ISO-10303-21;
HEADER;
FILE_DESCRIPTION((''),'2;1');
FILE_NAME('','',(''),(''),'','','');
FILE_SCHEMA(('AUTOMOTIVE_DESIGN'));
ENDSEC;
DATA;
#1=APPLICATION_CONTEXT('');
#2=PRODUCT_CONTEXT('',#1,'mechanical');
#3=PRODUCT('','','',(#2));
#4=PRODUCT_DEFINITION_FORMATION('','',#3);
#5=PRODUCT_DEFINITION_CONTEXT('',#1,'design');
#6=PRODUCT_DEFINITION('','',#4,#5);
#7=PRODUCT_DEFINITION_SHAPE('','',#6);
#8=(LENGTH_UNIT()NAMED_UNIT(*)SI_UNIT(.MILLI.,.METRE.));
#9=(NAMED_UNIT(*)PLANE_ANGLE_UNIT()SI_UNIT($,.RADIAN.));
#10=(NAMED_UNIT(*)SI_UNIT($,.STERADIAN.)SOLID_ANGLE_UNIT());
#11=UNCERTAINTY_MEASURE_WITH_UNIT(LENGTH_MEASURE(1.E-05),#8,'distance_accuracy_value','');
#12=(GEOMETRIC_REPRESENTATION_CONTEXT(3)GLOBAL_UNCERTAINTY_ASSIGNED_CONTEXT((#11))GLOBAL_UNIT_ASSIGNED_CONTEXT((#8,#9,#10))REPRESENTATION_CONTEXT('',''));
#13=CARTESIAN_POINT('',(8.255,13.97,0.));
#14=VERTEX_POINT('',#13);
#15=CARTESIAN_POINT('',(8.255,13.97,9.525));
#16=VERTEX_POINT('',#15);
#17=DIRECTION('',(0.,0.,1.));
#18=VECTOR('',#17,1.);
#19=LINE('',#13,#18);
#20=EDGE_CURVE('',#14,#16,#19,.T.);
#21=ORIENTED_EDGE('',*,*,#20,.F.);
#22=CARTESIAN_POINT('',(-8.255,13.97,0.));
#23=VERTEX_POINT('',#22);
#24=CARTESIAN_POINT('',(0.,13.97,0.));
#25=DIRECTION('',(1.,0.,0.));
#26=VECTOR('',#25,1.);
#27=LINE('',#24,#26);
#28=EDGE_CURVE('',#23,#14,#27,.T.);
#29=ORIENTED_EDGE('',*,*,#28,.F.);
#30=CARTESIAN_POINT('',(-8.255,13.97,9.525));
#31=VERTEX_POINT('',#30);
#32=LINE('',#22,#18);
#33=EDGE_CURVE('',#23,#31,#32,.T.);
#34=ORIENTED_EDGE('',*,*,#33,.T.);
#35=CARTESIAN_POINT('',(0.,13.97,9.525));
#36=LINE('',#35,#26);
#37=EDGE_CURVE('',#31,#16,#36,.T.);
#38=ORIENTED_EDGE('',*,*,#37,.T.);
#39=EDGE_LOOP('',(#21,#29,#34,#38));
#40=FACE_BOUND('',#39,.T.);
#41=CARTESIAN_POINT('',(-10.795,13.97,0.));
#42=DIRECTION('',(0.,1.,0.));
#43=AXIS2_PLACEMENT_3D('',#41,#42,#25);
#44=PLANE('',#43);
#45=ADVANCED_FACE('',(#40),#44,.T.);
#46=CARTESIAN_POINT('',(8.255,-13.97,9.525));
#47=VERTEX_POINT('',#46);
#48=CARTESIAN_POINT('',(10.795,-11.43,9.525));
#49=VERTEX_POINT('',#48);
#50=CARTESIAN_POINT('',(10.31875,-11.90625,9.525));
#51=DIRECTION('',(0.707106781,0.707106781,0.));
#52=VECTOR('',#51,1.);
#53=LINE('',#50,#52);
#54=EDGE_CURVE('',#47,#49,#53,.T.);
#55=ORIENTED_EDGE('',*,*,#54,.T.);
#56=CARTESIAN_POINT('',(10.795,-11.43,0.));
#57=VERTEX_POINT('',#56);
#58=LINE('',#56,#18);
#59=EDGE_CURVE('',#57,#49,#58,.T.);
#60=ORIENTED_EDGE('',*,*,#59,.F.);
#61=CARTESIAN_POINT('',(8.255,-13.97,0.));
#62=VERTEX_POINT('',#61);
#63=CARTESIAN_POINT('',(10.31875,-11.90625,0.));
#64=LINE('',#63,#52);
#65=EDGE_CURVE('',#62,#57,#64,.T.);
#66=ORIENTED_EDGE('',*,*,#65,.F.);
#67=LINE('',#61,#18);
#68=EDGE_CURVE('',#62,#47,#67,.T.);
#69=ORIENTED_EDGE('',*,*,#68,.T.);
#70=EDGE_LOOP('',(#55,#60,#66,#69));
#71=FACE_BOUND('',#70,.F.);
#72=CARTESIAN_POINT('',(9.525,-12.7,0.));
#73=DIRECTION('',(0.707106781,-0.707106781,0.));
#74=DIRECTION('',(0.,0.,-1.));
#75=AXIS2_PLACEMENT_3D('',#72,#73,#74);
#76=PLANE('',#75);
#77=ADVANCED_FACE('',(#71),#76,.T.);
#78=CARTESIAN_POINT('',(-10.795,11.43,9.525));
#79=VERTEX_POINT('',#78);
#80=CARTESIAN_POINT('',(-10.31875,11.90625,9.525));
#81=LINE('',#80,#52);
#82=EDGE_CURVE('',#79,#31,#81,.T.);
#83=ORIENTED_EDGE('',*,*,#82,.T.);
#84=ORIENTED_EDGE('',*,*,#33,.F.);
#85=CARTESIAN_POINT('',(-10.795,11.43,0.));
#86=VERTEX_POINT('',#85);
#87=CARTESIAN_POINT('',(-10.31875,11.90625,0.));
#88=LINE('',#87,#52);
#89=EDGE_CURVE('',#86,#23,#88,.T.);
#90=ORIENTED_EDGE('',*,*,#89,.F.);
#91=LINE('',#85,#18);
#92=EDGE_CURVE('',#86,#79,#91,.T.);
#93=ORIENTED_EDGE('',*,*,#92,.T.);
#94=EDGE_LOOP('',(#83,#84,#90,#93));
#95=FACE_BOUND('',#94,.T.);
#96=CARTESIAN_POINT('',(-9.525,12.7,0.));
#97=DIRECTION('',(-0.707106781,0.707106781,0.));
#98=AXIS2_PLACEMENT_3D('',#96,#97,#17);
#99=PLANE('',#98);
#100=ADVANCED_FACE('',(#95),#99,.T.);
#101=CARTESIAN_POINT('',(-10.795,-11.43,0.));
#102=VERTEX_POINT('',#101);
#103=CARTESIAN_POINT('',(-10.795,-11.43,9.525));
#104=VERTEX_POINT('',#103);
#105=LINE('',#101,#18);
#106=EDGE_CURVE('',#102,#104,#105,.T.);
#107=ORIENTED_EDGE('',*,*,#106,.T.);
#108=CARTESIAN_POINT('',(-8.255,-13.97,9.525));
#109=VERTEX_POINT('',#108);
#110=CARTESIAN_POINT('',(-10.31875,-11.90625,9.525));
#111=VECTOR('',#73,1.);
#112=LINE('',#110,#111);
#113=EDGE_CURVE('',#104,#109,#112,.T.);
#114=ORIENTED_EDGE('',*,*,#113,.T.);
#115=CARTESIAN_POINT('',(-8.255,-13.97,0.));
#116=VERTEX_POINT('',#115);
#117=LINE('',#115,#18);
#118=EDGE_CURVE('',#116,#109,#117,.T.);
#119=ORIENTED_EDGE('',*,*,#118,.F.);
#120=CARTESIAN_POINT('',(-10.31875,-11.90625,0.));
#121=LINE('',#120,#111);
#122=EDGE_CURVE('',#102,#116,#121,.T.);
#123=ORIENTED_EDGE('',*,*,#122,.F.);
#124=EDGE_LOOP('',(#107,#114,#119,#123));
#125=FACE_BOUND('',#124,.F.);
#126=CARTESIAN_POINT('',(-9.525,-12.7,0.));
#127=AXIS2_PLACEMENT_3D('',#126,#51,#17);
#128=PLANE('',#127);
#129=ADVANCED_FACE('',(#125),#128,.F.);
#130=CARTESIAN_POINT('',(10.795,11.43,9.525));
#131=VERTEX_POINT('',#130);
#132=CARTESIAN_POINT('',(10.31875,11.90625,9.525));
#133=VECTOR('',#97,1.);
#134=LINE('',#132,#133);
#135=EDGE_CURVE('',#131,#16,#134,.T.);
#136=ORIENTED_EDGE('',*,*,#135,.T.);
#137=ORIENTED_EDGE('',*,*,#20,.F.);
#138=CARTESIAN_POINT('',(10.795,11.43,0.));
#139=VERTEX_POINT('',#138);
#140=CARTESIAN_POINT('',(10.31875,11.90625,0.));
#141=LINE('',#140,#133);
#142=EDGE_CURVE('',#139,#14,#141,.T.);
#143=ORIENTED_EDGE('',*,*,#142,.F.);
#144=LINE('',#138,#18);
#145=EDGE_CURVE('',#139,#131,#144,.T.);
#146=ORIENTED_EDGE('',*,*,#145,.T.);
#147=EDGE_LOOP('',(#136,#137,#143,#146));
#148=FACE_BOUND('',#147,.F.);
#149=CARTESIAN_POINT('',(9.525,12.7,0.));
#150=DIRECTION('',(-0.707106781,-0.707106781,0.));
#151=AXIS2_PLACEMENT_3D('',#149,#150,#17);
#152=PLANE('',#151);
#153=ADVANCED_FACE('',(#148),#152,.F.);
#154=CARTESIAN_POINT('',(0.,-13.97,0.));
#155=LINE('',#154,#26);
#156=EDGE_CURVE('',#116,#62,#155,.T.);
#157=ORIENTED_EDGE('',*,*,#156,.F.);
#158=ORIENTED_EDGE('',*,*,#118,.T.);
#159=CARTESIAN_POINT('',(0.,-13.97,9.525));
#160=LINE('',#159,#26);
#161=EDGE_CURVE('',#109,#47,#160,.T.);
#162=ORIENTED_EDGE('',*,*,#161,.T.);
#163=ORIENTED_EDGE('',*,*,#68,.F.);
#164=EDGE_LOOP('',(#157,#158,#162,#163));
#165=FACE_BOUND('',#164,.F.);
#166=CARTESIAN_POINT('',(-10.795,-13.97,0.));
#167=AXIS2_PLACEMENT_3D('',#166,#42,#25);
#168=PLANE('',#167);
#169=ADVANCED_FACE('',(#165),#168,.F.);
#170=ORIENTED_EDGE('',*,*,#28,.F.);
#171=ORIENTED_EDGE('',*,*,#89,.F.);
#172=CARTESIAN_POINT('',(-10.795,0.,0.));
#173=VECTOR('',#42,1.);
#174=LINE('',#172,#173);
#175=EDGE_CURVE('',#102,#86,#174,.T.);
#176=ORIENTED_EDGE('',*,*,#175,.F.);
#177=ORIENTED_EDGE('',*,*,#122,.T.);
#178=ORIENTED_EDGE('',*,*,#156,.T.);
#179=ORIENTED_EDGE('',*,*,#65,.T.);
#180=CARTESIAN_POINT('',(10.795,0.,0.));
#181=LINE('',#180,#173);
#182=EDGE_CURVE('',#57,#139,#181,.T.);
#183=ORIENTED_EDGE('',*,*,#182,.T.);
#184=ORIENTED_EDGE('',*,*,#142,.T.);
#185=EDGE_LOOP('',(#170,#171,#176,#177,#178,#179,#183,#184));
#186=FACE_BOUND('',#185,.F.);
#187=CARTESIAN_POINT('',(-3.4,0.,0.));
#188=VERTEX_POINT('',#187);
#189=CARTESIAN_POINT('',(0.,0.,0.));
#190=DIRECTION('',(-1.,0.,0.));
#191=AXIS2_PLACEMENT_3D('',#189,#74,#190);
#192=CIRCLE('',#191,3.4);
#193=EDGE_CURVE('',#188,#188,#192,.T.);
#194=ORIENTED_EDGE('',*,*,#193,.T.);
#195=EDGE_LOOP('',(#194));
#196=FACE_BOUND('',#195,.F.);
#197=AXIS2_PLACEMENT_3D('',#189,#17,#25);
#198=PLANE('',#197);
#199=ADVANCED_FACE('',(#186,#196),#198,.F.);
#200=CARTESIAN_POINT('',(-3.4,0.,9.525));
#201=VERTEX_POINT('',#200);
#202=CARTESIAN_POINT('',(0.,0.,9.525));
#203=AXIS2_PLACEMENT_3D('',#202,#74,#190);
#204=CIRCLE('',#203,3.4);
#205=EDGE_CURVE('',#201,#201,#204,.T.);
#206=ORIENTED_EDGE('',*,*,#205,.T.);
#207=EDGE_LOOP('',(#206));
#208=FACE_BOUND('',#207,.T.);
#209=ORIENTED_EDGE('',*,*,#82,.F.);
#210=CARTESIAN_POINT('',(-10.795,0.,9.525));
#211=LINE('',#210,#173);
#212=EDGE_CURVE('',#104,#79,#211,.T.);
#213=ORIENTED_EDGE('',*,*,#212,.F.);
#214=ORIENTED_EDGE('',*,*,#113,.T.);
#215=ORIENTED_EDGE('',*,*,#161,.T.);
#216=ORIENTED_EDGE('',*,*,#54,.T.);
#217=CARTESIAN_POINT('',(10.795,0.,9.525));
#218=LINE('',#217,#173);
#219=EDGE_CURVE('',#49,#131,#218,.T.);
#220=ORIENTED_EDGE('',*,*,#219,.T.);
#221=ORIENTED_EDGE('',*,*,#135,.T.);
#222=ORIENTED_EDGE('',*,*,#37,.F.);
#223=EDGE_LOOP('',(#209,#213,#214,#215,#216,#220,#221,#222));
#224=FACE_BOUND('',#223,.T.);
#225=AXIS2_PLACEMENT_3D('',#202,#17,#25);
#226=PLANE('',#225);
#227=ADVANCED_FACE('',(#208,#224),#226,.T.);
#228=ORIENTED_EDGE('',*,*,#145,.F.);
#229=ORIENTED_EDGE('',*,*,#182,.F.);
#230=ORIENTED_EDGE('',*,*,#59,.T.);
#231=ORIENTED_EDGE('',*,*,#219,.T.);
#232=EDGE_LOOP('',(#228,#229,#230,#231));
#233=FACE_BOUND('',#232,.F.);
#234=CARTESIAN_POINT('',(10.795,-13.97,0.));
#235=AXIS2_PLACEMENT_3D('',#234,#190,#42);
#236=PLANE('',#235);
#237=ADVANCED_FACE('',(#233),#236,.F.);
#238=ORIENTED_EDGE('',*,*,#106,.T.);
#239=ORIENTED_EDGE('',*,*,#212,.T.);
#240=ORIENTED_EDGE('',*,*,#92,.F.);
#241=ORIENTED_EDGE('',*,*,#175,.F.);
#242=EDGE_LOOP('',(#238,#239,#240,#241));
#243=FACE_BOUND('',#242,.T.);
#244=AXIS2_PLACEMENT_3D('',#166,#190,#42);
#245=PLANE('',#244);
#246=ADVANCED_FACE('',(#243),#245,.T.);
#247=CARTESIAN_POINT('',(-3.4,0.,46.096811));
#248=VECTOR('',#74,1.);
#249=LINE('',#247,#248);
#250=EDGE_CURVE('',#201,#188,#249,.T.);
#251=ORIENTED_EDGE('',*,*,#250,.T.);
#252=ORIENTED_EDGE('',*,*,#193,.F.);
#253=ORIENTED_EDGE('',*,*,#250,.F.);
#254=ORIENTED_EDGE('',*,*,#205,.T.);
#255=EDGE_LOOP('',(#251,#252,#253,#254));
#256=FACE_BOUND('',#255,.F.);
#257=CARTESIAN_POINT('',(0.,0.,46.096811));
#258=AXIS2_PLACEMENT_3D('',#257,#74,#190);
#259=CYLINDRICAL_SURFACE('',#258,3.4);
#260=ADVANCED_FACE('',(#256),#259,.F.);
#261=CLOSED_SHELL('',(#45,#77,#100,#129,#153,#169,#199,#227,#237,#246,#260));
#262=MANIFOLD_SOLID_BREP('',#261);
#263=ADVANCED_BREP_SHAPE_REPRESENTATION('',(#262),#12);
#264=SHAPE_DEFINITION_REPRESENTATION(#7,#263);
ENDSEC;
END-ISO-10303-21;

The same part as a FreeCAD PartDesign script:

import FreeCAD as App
import Part
import Sketcher
from FreeCAD import Vector
Q = App.Units.Quantity


def edges_at(feature, points):
    """Names of the edges that pass closest to the given points."""
    edges = feature.Shape.Edges
    near = lambda p: min(range(len(edges)), key=lambda i: edges[i].distToShape(Part.Vertex(*p))[0])
    return sorted({f"Edge{near(p) + 1}" for p in points})

doc = App.newDocument("Part")
body = doc.addObject("PartDesign::Body", "Body")

# Sketch on XY plane
sketch1 = body.newObject("Sketcher::SketchObject", "Sketch")
sketch1.AttachmentSupport = (doc.getObject("XY_Plane"), [""])
sketch1.MapMode = "FlatFace"
sketch1.addGeometry([
    Part.LineSegment(Vector(-11, 14, 0), Vector(-11, -14, 0)),
    Part.LineSegment(Vector(-11, -14, 0), Vector(11, -14, 0)),
    Part.LineSegment(Vector(11, -14, 0), Vector(11, 14, 0)),
    Part.LineSegment(Vector(11, 14, 0), Vector(-11, 14, 0)),
], False)
sketch1.addConstraint([
    Sketcher.Constraint("Coincident", 0, 2, 1, 1),
    Sketcher.Constraint("Coincident", 1, 2, 2, 1),
    Sketcher.Constraint("Coincident", 2, 2, 3, 1),
    Sketcher.Constraint("Coincident", 3, 2, 0, 1),
    Sketcher.Constraint("Vertical", 0),
    Sketcher.Constraint("Horizontal", 1),
    Sketcher.Constraint("Vertical", 2),
    Sketcher.Constraint("Horizontal", 3),
    Sketcher.Constraint("Symmetric", 0, 2, 2, 2, -1, 1),
    Sketcher.Constraint("DistanceY", 0, 2, 0, 1, Q("1.1 in")),
    Sketcher.Constraint("DistanceX", 1, 1, 1, 2, Q("0.85 in")),
])
pad1 = body.newObject("PartDesign::Pad", "Pad")
pad1.Profile = sketch1
pad1.Length = Q("0.375 in")
doc.recompute()

chamfer = body.newObject("PartDesign::Chamfer", "Chamfer")
chamfer.Base = (pad1, edges_at(pad1, [
    (-10.795, 13.97, 4.763),
    (-10.795, -13.97, 4.763),
    (10.795, -13.97, 4.763),
    (10.795, 13.97, 4.763),
]))
chamfer.ChamferType = "Two distances"
chamfer.Size = Q("0.1 in")
chamfer.Size2 = Q("0.1 in")

# Sketch on XY plane
sketch2 = body.newObject("Sketcher::SketchObject", "Sketch001")
sketch2.AttachmentSupport = (doc.getObject("XY_Plane"), [""])
sketch2.MapMode = "FlatFace"
sketch2.AttachmentOffset = App.Placement(Vector(0, 0, 0.375 * 25.4), App.Rotation())
sketch2.addGeometry(Part.Circle(Vector(0, 0, 0), Vector(0, 0, 1), 3.3), False)
sketch2.addConstraint([
    Sketcher.Constraint("Coincident", 0, 3, -1, 1),
    Sketcher.Constraint("Diameter", 0, Q("0.26 in")),
])
pocket1 = body.newObject("PartDesign::Pocket", "Pocket")
pocket1.Profile = sketch2
pocket1.Type = "ThroughAll"

# Sketch on XY plane
sketch3 = body.newObject("Sketcher::SketchObject", "Sketch002")
sketch3.AttachmentSupport = (doc.getObject("XY_Plane"), [""])
sketch3.MapMode = "FlatFace"
sketch3.AttachmentOffset = App.Placement(Vector(0, 0, 0.375 * 25.4), App.Rotation())
sketch3.addGeometry(Part.Circle(Vector(0, 0, 0), Vector(0, 0, 1), 3.4), False)
sketch3.addConstraint([
    Sketcher.Constraint("Coincident", 0, 3, -1, 1),
    Sketcher.Constraint("Diameter", 0, Q("6.8 mm")),
])
doc.recompute()
hole = body.newObject("PartDesign::Hole", "Hole")
hole.Profile = sketch3
hole.ThreadType = "None"
hole.Diameter = 6.8
hole.DepthType = "ThroughAll"

doc.recompute()
